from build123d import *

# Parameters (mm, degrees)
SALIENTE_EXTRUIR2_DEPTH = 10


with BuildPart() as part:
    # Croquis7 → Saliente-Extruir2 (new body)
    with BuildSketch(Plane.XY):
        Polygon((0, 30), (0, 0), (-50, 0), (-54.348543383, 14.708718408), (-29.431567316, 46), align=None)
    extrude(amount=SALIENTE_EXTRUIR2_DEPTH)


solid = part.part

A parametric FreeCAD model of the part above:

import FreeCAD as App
import Part
import Sketcher
Q = App.Units.Quantity

doc = App.newDocument("Part")
body = doc.addObject("PartDesign::Body", "Body")

# Sketch on XY plane
sketch1 = doc.addObject("Sketcher::SketchObject", "Sketch")
body.addObject(sketch1)
sketch1.AttachmentSupport = (doc.XY_Plane, [""])
sketch1.MapMode = "FlatFace"
sketch1.addGeometry([
    Part.LineSegment(App.Vector(0, 0, 0), App.Vector(0, 30, 0)),  # 0
    Part.LineSegment(App.Vector(0, 30, 0), App.Vector(-29, 46, 0)),  # 1
    Part.LineSegment(App.Vector(-29, 46, 0), App.Vector(-54, 15, 0)),  # 2
    Part.LineSegment(App.Vector(-54, 15, 0), App.Vector(-50, 0, 0)),  # 3
    Part.LineSegment(App.Vector(-50, 0, 0), App.Vector(0, 0, 0)),  # 4
], False)
sketch1.addConstraint([
    Sketcher.Constraint("Coincident", 0, 2, 1, 1),
    Sketcher.Constraint("Coincident", 1, 2, 2, 1),
    Sketcher.Constraint("Coincident", 2, 2, 3, 1),
    Sketcher.Constraint("Coincident", 3, 2, 4, 1),
    Sketcher.Constraint("Coincident", 4, 2, 0, 1),
    Sketcher.Constraint("Vertical", 0),
    Sketcher.Constraint("Horizontal", 4),
    Sketcher.Constraint("Coincident", 4, 2, -1, 1),
    Sketcher.Constraint("DistanceX", 4, 1, 4, 2, Q("50 mm")),
    Sketcher.Constraint("DistanceY", 0, 1, 0, 2, Q("30 mm")),
    Sketcher.Constraint("Distance", 2, Q("40 mm")),
    Sketcher.Constraint("DistanceY", -1, 1, 1, 2, Q("46 mm")),
    Sketcher.Constraint("Angle", 1, Q("151.469994 deg")),
    Sketcher.Constraint("Angle", 2, Q("-128.530006 deg")),
])
pad1 = doc.addObject("PartDesign::Pad", "Pad")
body.addObject(pad1)
pad1.Profile = sketch1
pad1.Length = 10

doc.recompute()
